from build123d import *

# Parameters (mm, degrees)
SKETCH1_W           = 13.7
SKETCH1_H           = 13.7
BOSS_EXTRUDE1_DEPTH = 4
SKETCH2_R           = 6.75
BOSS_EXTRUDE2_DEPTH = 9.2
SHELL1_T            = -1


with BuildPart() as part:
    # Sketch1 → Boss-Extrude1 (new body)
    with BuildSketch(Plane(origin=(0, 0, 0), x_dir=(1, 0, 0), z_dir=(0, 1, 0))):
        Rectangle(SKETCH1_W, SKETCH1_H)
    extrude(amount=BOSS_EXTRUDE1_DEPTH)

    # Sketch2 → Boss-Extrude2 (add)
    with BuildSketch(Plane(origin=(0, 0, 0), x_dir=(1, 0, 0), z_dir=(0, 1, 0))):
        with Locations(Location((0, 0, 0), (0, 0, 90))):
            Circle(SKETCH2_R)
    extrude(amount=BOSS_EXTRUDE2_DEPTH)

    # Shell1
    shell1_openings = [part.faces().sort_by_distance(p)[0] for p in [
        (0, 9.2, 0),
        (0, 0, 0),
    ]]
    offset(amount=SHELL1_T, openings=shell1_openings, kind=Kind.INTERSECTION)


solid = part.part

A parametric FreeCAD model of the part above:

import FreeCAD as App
import Part
import Sketcher
from FreeCAD import Vector
Q = App.Units.Quantity


def faces_at(feature, points):
    """Names of the faces that lie closest to the given points."""
    faces = feature.Shape.Faces
    near = lambda p: min(range(len(faces)), key=lambda i: faces[i].distToShape(Part.Vertex(*p))[0])
    return sorted({f"Face{near(p) + 1}" for p in points})


def add_polygon(sketch, points):
    """Adds a closed chain of lines whose ends are joined by coincident constraints."""
    first, n = sketch.GeometryCount, len(points)
    for a, b in zip(points, points[1:] + points[:1]):
        sketch.addGeometry(Part.LineSegment(App.Vector(*a, 0), App.Vector(*b, 0)), False)
    for i in range(n):
        sketch.addConstraint(Sketcher.Constraint("Coincident", first + i, 2, first + (i + 1) % n, 1))

doc = App.newDocument("Part")
body = doc.addObject("PartDesign::Body", "Body")

# Sketch on XZ plane
sketch1 = doc.addObject("Sketcher::SketchObject", "Sketch")
body.addObject(sketch1)
sketch1.AttachmentSupport = (doc.XZ_Plane, [""])
sketch1.MapMode = "FlatFace"
add_polygon(sketch1, [(-6.85, -6.85), (-6.85, 6.85), (6.85, 6.85), (6.85, -6.85)])  # lines 0-3
sketch1.addConstraint([
    Sketcher.Constraint("Vertical", 0),
    Sketcher.Constraint("Horizontal", 1),
    Sketcher.Constraint("Vertical", 2),
    Sketcher.Constraint("Horizontal", 3),
    Sketcher.Constraint("Symmetric", 0, 2, 2, 2, -1, 1),
    Sketcher.Constraint("Equal", 3, 0),
    Sketcher.Constraint("DistanceX", 1, 1, 1, 2, Q("13.7 mm")),
])
pad1 = doc.addObject("PartDesign::Pad", "Pad")
body.addObject(pad1)
pad1.Profile = sketch1
pad1.Length = 4
pad1.Reversed = True

# Sketch on XZ plane
sketch2 = doc.addObject("Sketcher::SketchObject", "Sketch001")
body.addObject(sketch2)
sketch2.AttachmentSupport = (doc.XZ_Plane, [""])
sketch2.MapMode = "FlatFace"
sketch2.addGeometry(Part.Circle(Vector(0, 0, 0), Vector(0, 0, 1), 6.75), False)
sketch2.addConstraint([
    Sketcher.Constraint("Coincident", 0, 3, -1, 1),
    Sketcher.Constraint("Diameter", 0, Q("13.5 mm")),
])
pad2 = doc.addObject("PartDesign::Pad", "Pad001")
body.addObject(pad2)
pad2.Profile = sketch2
pad2.Length = 9.2
pad2.Reversed = True
doc.recompute()

thickness = doc.addObject("PartDesign::Thickness", "Thickness")
body.addObject(thickness)
thickness.Base = (pad2, faces_at(pad2, [(0, 9.2, 0), (0, 0, 0)]))
thickness.Value = 1
thickness.Reversed = True
thickness.Join = "Intersection"

doc.recompute()
